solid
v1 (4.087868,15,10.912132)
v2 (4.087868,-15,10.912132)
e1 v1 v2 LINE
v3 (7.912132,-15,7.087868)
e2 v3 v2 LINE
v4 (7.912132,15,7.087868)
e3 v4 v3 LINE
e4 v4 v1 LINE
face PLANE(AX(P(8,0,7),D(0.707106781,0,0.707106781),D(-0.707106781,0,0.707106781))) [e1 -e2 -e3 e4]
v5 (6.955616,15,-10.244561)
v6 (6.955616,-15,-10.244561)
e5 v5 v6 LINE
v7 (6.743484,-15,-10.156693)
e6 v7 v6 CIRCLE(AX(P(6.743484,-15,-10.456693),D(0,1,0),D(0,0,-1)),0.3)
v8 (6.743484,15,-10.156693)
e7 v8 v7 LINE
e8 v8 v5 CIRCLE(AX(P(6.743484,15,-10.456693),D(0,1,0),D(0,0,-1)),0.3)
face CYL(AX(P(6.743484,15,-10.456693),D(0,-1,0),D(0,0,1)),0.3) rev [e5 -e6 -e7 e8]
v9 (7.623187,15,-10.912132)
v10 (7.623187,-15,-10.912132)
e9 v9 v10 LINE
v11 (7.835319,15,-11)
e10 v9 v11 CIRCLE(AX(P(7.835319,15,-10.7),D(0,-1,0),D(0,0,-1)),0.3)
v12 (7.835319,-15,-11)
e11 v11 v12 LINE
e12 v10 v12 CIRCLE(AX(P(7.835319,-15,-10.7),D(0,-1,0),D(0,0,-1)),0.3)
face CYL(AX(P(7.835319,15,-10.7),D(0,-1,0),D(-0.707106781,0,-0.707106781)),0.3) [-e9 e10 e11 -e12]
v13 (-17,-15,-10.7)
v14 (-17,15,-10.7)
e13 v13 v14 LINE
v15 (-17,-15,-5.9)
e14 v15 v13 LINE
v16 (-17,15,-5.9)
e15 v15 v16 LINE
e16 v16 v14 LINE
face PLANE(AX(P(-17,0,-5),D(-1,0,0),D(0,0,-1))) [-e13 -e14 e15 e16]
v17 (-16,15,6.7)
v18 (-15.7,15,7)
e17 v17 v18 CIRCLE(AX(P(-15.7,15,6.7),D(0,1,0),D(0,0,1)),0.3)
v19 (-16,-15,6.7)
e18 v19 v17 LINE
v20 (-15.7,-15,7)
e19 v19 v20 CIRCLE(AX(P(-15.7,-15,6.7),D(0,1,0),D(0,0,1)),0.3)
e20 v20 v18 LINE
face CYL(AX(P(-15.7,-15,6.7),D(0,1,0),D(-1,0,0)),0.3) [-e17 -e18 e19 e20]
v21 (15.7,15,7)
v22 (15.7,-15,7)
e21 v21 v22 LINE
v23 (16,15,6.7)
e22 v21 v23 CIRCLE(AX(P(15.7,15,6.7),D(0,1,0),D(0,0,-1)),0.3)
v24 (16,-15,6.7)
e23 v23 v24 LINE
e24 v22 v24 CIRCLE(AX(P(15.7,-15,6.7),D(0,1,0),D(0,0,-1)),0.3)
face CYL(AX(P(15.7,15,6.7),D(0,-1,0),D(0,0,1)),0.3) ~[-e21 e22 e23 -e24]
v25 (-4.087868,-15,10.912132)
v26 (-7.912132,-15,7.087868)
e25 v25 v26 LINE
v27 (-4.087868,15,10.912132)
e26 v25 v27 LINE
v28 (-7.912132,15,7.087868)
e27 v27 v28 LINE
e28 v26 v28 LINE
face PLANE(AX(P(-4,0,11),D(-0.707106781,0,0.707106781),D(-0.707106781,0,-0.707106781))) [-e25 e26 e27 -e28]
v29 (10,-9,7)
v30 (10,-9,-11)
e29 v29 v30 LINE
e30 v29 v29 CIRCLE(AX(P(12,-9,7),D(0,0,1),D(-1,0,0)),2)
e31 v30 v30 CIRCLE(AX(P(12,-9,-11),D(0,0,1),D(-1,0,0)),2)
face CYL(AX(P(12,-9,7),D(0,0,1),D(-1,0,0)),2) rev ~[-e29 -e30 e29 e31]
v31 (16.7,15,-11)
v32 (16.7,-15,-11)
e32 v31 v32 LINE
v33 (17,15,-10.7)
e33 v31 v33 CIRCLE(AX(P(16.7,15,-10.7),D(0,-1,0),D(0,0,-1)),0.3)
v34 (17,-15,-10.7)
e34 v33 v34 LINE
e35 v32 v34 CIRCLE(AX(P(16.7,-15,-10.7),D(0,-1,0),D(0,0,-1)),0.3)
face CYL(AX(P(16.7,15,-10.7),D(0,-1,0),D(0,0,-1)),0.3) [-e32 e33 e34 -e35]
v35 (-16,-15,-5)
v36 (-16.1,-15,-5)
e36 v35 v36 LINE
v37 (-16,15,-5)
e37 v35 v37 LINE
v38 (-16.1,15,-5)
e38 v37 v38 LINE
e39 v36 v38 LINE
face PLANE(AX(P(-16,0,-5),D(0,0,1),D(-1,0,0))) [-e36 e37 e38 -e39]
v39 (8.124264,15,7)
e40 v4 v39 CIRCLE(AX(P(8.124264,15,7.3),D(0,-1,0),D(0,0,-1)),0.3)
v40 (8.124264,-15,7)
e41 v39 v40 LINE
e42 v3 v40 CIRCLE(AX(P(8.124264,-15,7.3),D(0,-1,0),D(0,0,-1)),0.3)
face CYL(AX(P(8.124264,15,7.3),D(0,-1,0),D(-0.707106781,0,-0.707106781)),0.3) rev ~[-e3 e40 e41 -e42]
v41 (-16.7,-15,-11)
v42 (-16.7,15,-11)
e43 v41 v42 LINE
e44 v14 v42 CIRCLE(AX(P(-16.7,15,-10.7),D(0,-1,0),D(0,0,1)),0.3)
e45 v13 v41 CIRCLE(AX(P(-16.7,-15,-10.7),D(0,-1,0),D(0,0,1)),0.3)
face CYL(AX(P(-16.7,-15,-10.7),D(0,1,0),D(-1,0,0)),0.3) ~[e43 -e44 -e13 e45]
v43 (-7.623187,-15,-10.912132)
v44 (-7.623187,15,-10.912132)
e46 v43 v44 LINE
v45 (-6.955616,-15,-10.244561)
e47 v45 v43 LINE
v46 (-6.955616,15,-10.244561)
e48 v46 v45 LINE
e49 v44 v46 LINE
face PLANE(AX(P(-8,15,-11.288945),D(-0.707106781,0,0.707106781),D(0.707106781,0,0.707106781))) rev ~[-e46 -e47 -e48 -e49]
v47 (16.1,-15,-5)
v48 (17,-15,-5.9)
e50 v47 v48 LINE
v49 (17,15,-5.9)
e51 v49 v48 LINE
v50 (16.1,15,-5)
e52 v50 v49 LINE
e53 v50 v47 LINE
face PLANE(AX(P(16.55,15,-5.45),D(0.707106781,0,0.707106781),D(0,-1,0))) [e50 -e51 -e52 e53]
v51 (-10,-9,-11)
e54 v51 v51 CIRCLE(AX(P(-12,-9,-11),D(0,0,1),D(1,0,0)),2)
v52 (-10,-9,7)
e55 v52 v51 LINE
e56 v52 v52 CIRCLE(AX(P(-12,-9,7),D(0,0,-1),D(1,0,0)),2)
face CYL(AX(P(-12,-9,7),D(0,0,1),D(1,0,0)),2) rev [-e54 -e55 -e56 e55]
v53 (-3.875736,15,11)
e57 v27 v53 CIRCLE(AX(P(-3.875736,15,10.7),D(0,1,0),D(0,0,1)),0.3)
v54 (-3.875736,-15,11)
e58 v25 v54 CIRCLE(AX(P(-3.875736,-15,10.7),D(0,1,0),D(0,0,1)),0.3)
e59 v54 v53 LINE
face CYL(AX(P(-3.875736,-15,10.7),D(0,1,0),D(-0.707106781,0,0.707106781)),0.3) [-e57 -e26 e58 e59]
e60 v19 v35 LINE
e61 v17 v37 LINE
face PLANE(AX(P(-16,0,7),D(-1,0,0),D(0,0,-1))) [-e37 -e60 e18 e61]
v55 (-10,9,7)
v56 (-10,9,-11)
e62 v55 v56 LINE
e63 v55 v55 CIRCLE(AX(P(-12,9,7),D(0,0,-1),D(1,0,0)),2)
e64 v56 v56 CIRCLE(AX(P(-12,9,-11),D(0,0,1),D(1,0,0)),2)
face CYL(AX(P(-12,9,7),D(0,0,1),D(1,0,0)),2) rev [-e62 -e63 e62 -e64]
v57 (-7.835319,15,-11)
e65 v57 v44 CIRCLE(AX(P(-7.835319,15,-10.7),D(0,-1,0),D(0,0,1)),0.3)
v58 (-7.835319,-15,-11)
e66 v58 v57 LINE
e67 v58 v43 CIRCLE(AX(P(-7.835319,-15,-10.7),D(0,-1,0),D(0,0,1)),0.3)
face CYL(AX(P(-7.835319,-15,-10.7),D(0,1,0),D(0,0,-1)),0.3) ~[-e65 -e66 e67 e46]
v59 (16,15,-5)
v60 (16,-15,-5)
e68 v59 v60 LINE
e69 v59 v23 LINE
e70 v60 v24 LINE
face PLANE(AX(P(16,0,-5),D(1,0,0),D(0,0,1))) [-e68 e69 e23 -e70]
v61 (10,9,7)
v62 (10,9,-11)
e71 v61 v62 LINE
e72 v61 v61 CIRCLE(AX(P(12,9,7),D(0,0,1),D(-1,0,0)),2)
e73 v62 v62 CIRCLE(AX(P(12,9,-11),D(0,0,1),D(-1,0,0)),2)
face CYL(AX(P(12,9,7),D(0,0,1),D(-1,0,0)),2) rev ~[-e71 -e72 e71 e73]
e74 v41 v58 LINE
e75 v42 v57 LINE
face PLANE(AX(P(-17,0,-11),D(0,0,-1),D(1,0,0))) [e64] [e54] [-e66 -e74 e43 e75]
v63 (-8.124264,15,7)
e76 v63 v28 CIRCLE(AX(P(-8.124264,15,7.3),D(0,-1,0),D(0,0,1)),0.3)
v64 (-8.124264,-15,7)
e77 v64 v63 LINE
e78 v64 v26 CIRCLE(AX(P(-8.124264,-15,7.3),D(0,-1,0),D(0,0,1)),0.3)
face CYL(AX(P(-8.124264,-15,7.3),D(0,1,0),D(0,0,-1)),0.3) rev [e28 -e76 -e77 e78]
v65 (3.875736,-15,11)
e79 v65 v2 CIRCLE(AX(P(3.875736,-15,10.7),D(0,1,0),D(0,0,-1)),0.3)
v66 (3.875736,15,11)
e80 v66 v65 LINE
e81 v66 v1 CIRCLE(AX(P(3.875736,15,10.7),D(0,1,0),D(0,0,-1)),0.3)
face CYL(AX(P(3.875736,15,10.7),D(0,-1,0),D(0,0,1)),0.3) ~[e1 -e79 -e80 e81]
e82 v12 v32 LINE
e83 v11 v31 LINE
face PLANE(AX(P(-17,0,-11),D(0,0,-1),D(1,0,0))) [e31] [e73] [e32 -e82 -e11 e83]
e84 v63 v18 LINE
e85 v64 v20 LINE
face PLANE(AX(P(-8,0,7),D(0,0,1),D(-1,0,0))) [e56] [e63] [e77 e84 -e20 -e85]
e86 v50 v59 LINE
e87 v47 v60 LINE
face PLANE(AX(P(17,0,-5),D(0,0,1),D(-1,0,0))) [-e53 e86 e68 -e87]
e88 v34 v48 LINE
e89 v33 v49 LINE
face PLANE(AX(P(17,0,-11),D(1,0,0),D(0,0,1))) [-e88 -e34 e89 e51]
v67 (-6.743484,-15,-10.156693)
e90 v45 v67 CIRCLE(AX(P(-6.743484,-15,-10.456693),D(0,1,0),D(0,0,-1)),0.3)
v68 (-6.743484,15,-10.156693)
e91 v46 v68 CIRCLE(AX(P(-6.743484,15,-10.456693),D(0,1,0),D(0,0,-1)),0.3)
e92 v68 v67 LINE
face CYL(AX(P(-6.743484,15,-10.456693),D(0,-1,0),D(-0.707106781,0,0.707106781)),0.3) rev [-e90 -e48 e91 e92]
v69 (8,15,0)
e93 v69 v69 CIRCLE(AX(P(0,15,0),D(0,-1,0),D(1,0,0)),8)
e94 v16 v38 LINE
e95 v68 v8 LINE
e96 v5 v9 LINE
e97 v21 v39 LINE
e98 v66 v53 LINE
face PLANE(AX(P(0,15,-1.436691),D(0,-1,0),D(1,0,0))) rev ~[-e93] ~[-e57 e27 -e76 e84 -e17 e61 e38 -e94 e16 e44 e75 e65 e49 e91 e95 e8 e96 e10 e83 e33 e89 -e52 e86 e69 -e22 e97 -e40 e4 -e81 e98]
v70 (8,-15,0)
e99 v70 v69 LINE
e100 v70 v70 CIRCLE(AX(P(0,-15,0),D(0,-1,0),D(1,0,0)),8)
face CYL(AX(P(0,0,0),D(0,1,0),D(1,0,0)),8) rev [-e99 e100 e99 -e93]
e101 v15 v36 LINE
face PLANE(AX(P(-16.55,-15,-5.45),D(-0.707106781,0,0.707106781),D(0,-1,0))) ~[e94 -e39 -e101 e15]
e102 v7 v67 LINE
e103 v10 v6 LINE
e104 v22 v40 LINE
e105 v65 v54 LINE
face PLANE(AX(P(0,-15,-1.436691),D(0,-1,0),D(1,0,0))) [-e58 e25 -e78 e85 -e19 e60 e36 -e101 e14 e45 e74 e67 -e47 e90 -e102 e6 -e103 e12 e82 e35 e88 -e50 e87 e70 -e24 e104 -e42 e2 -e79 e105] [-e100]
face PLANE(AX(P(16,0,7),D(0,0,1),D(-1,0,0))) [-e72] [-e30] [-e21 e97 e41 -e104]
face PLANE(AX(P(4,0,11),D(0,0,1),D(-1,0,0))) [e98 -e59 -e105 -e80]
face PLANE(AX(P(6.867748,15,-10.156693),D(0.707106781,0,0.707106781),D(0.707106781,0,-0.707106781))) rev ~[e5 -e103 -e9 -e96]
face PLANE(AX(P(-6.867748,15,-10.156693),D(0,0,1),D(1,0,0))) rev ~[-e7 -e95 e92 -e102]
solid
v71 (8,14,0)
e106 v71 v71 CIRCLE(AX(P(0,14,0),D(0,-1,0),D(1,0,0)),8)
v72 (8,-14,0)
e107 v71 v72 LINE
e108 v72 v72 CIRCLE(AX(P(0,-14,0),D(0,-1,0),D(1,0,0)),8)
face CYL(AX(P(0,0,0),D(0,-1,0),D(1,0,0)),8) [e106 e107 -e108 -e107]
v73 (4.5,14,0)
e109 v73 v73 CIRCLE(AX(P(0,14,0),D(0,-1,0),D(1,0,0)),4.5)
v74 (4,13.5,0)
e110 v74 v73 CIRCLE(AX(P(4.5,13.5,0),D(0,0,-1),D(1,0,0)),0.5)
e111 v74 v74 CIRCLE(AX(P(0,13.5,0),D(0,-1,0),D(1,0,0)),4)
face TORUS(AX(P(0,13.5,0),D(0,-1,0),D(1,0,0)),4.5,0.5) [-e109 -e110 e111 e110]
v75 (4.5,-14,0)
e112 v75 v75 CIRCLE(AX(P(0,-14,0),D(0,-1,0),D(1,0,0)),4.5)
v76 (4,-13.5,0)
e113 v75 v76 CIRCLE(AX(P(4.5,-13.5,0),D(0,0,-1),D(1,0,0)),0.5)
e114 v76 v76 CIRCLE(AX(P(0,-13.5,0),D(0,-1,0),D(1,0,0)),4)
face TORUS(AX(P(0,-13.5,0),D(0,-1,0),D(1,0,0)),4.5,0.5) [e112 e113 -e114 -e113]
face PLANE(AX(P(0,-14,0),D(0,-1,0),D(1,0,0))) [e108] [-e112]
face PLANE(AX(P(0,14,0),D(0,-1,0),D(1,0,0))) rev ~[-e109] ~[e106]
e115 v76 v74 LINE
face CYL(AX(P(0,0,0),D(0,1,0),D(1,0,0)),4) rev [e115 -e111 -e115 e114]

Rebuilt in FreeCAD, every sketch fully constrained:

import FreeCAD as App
import Part
import Sketcher
Q = App.Units.Quantity


def edges_at(feature, points):
    """Names of the edges that pass closest to the given points."""
    edges = feature.Shape.Edges
    near = lambda p: min(range(len(edges)), key=lambda i: edges[i].distToShape(Part.Vertex(*p))[0])
    return sorted({f"Edge{near(p) + 1}" for p in points})

doc = App.newDocument("Part")
body = doc.addObject("PartDesign::Body", "Body")

sketch1 = doc.addObject("Sketcher::SketchObject", "Sketch")
body.addObject(sketch1)
sketch1.AttachmentSupport = (doc.XZ_Plane, [""])
sketch1.MapMode = "FlatFace"
sketch1.addGeometry(Part.LineSegment(App.Vector(-17, -11, 0), App.Vector(17, -11, 0)), False)
sketch1.addGeometry(Part.LineSegment(App.Vector(17, -11, 0), App.Vector(17, -5, 0)), False)
sketch1.addGeometry(Part.LineSegment(App.Vector(17, -5, 0), App.Vector(16, -5, 0)), False)
sketch1.addGeometry(Part.LineSegment(App.Vector(16, -5, 0), App.Vector(16, 7, 0)), False)
sketch1.addGeometry(Part.LineSegment(App.Vector(16, 7, 0), App.Vector(8, 7, 0)), False)
sketch1.addGeometry(Part.LineSegment(App.Vector(8, 7, 0), App.Vector(4, 11, 0)), False)
sketch1.addGeometry(Part.LineSegment(App.Vector(4, 11, 0), App.Vector(-4, 11, 0)), False)
sketch1.addGeometry(Part.LineSegment(App.Vector(-4, 11, 0), App.Vector(-8, 7, 0)), False)
sketch1.addGeometry(Part.LineSegment(App.Vector(-8, 7, 0), App.Vector(-16, 7, 0)), False)
sketch1.addGeometry(Part.LineSegment(App.Vector(-16, 7, 0), App.Vector(-16, -5, 0)), False)
sketch1.addGeometry(Part.LineSegment(App.Vector(-16, -5, 0), App.Vector(-17, -5, 0)), False)
sketch1.addGeometry(Part.LineSegment(App.Vector(-17, -5, 0), App.Vector(-17, -11, 0)), False)
sketch1.addGeometry(Part.Circle(App.Vector(0, 0, 0), App.Vector(0, 0, 1), 8), False)
sketch1.addConstraint(Sketcher.Constraint("Coincident", 0, 2, 1, 1))
sketch1.addConstraint(Sketcher.Constraint("Coincident", 1, 2, 2, 1))
sketch1.addConstraint(Sketcher.Constraint("Coincident", 2, 2, 3, 1))
sketch1.addConstraint(Sketcher.Constraint("Coincident", 3, 2, 4, 1))
sketch1.addConstraint(Sketcher.Constraint("Coincident", 4, 2, 5, 1))
sketch1.addConstraint(Sketcher.Constraint("Coincident", 5, 2, 6, 1))
sketch1.addConstraint(Sketcher.Constraint("Coincident", 6, 2, 7, 1))
sketch1.addConstraint(Sketcher.Constraint("Coincident", 7, 2, 8, 1))
sketch1.addConstraint(Sketcher.Constraint("Coincident", 8, 2, 9, 1))
sketch1.addConstraint(Sketcher.Constraint("Coincident", 9, 2, 10, 1))
sketch1.addConstraint(Sketcher.Constraint("Coincident", 10, 2, 11, 1))
sketch1.addConstraint(Sketcher.Constraint("Coincident", 11, 2, 0, 1))
sketch1.addConstraint(Sketcher.Constraint("Horizontal", 0))
sketch1.addConstraint(Sketcher.Constraint("Vertical", 1))
sketch1.addConstraint(Sketcher.Constraint("Horizontal", 2))
sketch1.addConstraint(Sketcher.Constraint("Vertical", 3))
sketch1.addConstraint(Sketcher.Constraint("Horizontal", 4))
sketch1.addConstraint(Sketcher.Constraint("Horizontal", 6))
sketch1.addConstraint(Sketcher.Constraint("Horizontal", 8))
sketch1.addConstraint(Sketcher.Constraint("Vertical", 9))
sketch1.addConstraint(Sketcher.Constraint("Horizontal", 10))
sketch1.addConstraint(Sketcher.Constraint("Vertical", 11))
sketch1.addConstraint(Sketcher.Constraint("Coincident", 12, 3, -1, 1))
sketch1.addConstraint(Sketcher.Constraint("Symmetric", 4, 2, 7, 2, -2))
sketch1.addConstraint(Sketcher.Constraint("Symmetric", 2, 2, 9, 2, -2))
sketch1.addConstraint(Sketcher.Constraint("Perpendicular", 5, 7))
sketch1.addConstraint(Sketcher.Constraint("Equal", 4, 6))
sketch1.addConstraint(Sketcher.Constraint("Equal", 2, 10))
sketch1.addConstraint(Sketcher.Constraint("Equal", 5, 7))
sketch1.addConstraint(Sketcher.Constraint("Diameter", 12, Q("16 mm")))
sketch1.addConstraint(Sketcher.Constraint("DistanceX", 0, 1, 0, 2, Q("34 mm")))
sketch1.addConstraint(Sketcher.Constraint("DistanceX", 2, 2, 2, 1, Q("1 mm")))
sketch1.addConstraint(Sketcher.Constraint("DistanceX", 4, 2, 4, 1, Q("8 mm")))
sketch1.addConstraint(Sketcher.Constraint("DistanceY", 1, 1, 1, 2, Q("6 mm")))
sketch1.addConstraint(Sketcher.Constraint("DistanceY", 3, 1, 3, 2, Q("12 mm")))
sketch1.addConstraint(Sketcher.Constraint("DistanceY", 0, 2, -1, 1, Q("11 mm")))
pad1 = doc.addObject("PartDesign::Pad", "Pad")
body.addObject(pad1)
pad1.Profile = sketch1
pad1.Length = 30
pad1.Midplane = True

sketch2 = doc.addObject("Sketcher::SketchObject", "Sketch001")
body.addObject(sketch2)
sketch2.AttachmentSupport = (doc.XZ_Plane, [""])
sketch2.MapMode = "FlatFace"
sketch2.AttachmentOffset = App.Placement(App.Vector(0, 0, -15), App.Rotation())
sketch2.addGeometry(Part.LineSegment(App.Vector(-8, -12.2, 0), App.Vector(-8, -11.3, 0)), False)
sketch2.addGeometry(Part.LineSegment(App.Vector(-8, -11.3, 0), App.Vector(-6.9, -10.2, 0)), False)
sketch2.addGeometry(Part.LineSegment(App.Vector(-6.9, -10.2, 0), App.Vector(6.9, -10.2, 0)), False)
sketch2.addGeometry(Part.LineSegment(App.Vector(6.9, -10.2, 0), App.Vector(8, -11.3, 0)), False)
sketch2.addGeometry(Part.LineSegment(App.Vector(8, -11.3, 0), App.Vector(8, -12.2, 0)), False)
sketch2.addGeometry(Part.LineSegment(App.Vector(8, -12.2, 0), App.Vector(-8, -12.2, 0)), False)
sketch2.addConstraint(Sketcher.Constraint("Coincident", 0, 2, 1, 1))
sketch2.addConstraint(Sketcher.Constraint("Coincident", 1, 2, 2, 1))
sketch2.addConstraint(Sketcher.Constraint("Coincident", 2, 2, 3, 1))
sketch2.addConstraint(Sketcher.Constraint("Coincident", 3, 2, 4, 1))
sketch2.addConstraint(Sketcher.Constraint("Coincident", 4, 2, 5, 1))
sketch2.addConstraint(Sketcher.Constraint("Coincident", 5, 2, 0, 1))
sketch2.addConstraint(Sketcher.Constraint("Vertical", 0))
sketch2.addConstraint(Sketcher.Constraint("Horizontal", 2))
sketch2.addConstraint(Sketcher.Constraint("Vertical", 4))
sketch2.addConstraint(Sketcher.Constraint("Horizontal", 5))
sketch2.addConstraint(Sketcher.Constraint("Symmetric", 0, 2, 3, 2, -2))
sketch2.addConstraint(Sketcher.Constraint("Perpendicular", 1, 3))
sketch2.addConstraint(Sketcher.Constraint("Equal", 1, 3))
sketch2.addConstraint(Sketcher.Constraint("DistanceX", 5, 2, 5, 1, Q("16 mm")))
sketch2.addConstraint(Sketcher.Constraint("DistanceY", 4, 2, 2, 2, Q("2 mm")))
sketch2.addConstraint(Sketcher.Constraint("DistanceY", 0, 1, 0, 2, Q("0.867748 mm")))
sketch2.addConstraint(Sketcher.Constraint("DistanceY", 0, 2, -1, 1, Q("11.288945 mm")))
pocket1 = doc.addObject("PartDesign::Pocket", "Pocket")
body.addObject(pocket1)
pocket1.Profile = sketch2
pocket1.Length = 35
pocket1.Reversed = True
doc.recompute()

chamfer = doc.addObject("PartDesign::Chamfer", "Chamfer")
body.addObject(chamfer)
chamfer.Base = (pocket1, edges_at(pocket1, [(17, 0, -5), (-17, 0, -5)]))
chamfer.Size = 0.9
doc.recompute()

fillet = doc.addObject("PartDesign::Fillet", "Fillet")
body.addObject(fillet)
fillet.Base = (chamfer, edges_at(chamfer, [
    (-17, 0, -11),
    (17, 0, -11),
    (7.711, 0, -11),
    (6.868, 0, -10.157),
    (-6.868, 0, -10.157),
    (-7.711, 0, -11),
    (16, 0, 7),
    (-16, 0, 7),
    (4, 0, 11),
    (-4, 0, 11),
    (-8, 0, 7),
    (8, 0, 7),
]))
fillet.Radius = 0.3

sketch3 = doc.addObject("Sketcher::SketchObject", "Sketch002")
body.addObject(sketch3)
sketch3.AttachmentSupport = (doc.XY_Plane, [""])
sketch3.MapMode = "FlatFace"
sketch3.AttachmentOffset = App.Placement(App.Vector(0, 0, 7), App.Rotation())
sketch3.addGeometry(Part.Circle(App.Vector(12, 9, 0), App.Vector(0, 0, 1), 2), False)
sketch3.addGeometry(Part.Circle(App.Vector(12, -9, 0), App.Vector(0, 0, 1), 2), False)
sketch3.addConstraint(Sketcher.Constraint("Equal", 0, 1))
sketch3.addConstraint(Sketcher.Constraint("Symmetric", 0, 3, 1, 3, -1))
sketch3.addConstraint(Sketcher.Constraint("Diameter", 0, Q("4 mm")))
sketch3.addConstraint(Sketcher.Constraint("DistanceX", -1, 1, 0, 3, Q("12 mm")))
sketch3.addConstraint(Sketcher.Constraint("DistanceY", -1, 1, 0, 3, Q("9 mm")))
pocket2 = doc.addObject("PartDesign::Pocket", "Pocket001")
body.addObject(pocket2)
pocket2.Profile = sketch3
pocket2.Length = 20
doc.recompute()

mirrored = doc.addObject("PartDesign::Mirrored", "Mirrored")
body.addObject(mirrored)
mirrored.Originals = [pocket2]
mirrored.MirrorPlane = (doc.YZ_Plane, [""])
body.Tip = mirrored
body2 = doc.addObject("PartDesign::Body", "Body001")

sketch4 = doc.addObject("Sketcher::SketchObject", "Sketch003")
body2.addObject(sketch4)
sketch4.AttachmentSupport = (doc.getObject("XZ_Plane001"), [""])
sketch4.MapMode = "FlatFace"
sketch4.addGeometry(Part.Circle(App.Vector(0, 0, 0), App.Vector(0, 0, 1), 8), False)
sketch4.addGeometry(Part.Circle(App.Vector(0, 0, 0), App.Vector(0, 0, 1), 4), False)
sketch4.addConstraint(Sketcher.Constraint("Coincident", 0, 3, -1, 1))
sketch4.addConstraint(Sketcher.Constraint("Coincident", 1, 3, -1, 1))
sketch4.addConstraint(Sketcher.Constraint("Diameter", 0, Q("16 mm")))
sketch4.addConstraint(Sketcher.Constraint("Diameter", 1, Q("8 mm")))
pad2 = doc.addObject("PartDesign::Pad", "Pad001")
body2.addObject(pad2)
pad2.Profile = sketch4
pad2.Length = 28
pad2.Midplane = True
doc.recompute()

fillet2 = doc.addObject("PartDesign::Fillet", "Fillet001")
body2.addObject(fillet2)
fillet2.Base = (pad2, edges_at(pad2, [(-4, -14, 0), (-4, 14, 0)]))
fillet2.Radius = 0.5

doc.recompute()
